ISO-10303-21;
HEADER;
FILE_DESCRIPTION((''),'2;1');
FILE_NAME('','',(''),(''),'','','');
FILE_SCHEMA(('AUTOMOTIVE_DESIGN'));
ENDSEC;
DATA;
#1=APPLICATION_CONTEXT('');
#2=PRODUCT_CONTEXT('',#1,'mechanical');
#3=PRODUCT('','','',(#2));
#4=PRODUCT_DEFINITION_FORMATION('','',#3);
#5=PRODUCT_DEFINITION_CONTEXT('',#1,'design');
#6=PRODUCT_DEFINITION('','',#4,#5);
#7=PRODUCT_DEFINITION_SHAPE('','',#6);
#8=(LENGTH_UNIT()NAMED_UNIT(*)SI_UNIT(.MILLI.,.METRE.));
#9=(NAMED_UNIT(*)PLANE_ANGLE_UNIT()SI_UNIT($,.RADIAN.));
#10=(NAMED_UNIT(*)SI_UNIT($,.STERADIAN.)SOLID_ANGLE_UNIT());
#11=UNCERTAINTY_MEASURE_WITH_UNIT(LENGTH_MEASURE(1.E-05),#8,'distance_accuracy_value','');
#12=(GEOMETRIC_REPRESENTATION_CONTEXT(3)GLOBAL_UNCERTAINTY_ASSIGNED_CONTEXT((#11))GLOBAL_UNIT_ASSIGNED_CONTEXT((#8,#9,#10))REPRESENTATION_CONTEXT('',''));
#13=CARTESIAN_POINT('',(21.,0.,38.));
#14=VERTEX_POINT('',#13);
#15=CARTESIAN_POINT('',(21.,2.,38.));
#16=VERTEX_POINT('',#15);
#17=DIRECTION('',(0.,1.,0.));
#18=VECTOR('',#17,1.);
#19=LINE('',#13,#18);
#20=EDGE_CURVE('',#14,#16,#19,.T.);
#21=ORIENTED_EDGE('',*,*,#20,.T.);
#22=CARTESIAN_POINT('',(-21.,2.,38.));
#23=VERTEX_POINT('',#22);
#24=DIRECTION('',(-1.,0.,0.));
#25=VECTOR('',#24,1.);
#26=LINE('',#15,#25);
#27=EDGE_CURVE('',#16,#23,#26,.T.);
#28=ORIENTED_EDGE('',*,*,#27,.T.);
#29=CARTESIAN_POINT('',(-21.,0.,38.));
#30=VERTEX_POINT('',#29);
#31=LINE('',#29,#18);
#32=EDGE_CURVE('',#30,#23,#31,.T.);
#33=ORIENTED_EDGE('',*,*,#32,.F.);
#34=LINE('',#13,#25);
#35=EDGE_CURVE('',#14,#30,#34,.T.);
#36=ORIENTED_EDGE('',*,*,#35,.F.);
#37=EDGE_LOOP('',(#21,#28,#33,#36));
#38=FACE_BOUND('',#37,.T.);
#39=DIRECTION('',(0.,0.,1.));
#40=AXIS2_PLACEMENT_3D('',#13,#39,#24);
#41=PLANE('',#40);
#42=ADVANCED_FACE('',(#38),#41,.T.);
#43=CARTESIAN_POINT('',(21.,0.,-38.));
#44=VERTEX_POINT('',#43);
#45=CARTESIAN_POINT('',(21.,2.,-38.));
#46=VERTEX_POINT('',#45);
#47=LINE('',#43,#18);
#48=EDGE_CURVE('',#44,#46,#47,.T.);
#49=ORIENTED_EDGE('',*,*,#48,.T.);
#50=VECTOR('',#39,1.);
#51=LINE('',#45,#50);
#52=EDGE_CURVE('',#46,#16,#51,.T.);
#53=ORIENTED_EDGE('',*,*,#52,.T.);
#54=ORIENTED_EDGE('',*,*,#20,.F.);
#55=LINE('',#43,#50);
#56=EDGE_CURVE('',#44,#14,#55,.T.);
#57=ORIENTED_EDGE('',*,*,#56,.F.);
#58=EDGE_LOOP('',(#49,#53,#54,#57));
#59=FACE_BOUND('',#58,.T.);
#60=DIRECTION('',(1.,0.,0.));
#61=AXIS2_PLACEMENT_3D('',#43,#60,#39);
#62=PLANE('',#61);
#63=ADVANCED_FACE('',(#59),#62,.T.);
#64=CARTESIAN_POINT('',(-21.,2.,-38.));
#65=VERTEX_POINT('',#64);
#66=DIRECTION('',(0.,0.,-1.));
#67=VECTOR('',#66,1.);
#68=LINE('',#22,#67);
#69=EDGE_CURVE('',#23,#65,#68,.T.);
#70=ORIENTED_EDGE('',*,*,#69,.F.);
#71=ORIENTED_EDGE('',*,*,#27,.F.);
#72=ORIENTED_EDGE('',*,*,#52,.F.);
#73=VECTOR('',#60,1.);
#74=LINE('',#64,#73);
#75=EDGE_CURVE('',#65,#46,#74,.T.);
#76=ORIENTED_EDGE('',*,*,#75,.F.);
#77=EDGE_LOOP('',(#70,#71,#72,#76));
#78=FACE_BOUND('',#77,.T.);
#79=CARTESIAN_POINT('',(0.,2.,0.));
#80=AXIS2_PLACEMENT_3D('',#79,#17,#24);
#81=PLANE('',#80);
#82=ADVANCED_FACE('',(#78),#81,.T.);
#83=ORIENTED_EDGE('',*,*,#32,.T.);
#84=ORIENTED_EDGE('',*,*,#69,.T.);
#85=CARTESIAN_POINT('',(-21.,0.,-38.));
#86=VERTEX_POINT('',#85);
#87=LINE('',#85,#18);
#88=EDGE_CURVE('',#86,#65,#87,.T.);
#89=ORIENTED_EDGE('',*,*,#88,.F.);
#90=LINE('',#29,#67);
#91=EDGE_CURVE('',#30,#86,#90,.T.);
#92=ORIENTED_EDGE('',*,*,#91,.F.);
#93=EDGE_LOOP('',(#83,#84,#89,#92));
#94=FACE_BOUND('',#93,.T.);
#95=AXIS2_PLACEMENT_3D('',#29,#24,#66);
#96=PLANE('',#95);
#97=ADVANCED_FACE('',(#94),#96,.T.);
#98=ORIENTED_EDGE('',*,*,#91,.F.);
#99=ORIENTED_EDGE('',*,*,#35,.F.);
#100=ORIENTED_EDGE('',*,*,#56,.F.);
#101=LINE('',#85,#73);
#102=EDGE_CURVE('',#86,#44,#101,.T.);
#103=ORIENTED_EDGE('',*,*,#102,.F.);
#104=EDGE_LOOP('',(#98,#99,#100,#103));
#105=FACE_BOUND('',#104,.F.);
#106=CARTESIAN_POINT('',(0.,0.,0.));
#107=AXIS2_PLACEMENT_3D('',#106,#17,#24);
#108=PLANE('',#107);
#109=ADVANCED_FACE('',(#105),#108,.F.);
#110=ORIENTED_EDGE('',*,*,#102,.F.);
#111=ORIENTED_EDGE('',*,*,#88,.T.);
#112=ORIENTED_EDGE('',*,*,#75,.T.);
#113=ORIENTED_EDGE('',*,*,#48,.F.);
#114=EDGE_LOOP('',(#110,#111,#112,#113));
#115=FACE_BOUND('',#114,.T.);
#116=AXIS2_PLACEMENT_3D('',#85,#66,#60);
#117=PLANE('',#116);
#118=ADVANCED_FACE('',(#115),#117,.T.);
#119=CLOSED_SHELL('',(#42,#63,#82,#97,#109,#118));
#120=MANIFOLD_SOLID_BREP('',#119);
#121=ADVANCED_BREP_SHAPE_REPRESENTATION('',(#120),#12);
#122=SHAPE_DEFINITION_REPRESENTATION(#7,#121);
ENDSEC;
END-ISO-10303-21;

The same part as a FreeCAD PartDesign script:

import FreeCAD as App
import Part
import Sketcher

V = App.Vector
Q = App.Units.Quantity


def add_polygon(sketch, points):
    """Adds a closed chain of lines whose ends are joined by coincident constraints."""
    first, n = sketch.GeometryCount, len(points)
    for a, b in zip(points, points[1:] + points[:1]):
        sketch.addGeometry(Part.LineSegment(App.Vector(*a, 0), App.Vector(*b, 0)), False)
    for i in range(n):
        sketch.addConstraint(Sketcher.Constraint("Coincident", first + i, 2, first + (i + 1) % n, 1))

doc = App.newDocument("Part")
body = doc.addObject("PartDesign::Body", "Body")

sketch1 = doc.addObject("Sketcher::SketchObject", "Sketch")
body.addObject(sketch1)
sketch1.AttachmentSupport = (doc.XZ_Plane, [""])
sketch1.MapMode = "FlatFace"
add_polygon(sketch1, [(-21, 38), (21, 38), (21, -38), (-21, -38)])
sketch1.addConstraint([
    Sketcher.Constraint("Horizontal", 0),
    Sketcher.Constraint("Vertical", 1),
    Sketcher.Constraint("Horizontal", 2),
    Sketcher.Constraint("Vertical", 3),
    Sketcher.Constraint("Symmetric", 0, 2, 2, 2, -1, 1),
    Sketcher.Constraint("DistanceX", 0, 1, 0, 2, Q("42 mm")),
    Sketcher.Constraint("DistanceY", 1, 2, 1, 1, Q("76 mm")),
])
pad1 = doc.addObject("PartDesign::Pad", "Pad")
body.addObject(pad1)
pad1.Profile = sketch1
pad1.Length = 2
pad1.Reversed = True

doc.recompute()
